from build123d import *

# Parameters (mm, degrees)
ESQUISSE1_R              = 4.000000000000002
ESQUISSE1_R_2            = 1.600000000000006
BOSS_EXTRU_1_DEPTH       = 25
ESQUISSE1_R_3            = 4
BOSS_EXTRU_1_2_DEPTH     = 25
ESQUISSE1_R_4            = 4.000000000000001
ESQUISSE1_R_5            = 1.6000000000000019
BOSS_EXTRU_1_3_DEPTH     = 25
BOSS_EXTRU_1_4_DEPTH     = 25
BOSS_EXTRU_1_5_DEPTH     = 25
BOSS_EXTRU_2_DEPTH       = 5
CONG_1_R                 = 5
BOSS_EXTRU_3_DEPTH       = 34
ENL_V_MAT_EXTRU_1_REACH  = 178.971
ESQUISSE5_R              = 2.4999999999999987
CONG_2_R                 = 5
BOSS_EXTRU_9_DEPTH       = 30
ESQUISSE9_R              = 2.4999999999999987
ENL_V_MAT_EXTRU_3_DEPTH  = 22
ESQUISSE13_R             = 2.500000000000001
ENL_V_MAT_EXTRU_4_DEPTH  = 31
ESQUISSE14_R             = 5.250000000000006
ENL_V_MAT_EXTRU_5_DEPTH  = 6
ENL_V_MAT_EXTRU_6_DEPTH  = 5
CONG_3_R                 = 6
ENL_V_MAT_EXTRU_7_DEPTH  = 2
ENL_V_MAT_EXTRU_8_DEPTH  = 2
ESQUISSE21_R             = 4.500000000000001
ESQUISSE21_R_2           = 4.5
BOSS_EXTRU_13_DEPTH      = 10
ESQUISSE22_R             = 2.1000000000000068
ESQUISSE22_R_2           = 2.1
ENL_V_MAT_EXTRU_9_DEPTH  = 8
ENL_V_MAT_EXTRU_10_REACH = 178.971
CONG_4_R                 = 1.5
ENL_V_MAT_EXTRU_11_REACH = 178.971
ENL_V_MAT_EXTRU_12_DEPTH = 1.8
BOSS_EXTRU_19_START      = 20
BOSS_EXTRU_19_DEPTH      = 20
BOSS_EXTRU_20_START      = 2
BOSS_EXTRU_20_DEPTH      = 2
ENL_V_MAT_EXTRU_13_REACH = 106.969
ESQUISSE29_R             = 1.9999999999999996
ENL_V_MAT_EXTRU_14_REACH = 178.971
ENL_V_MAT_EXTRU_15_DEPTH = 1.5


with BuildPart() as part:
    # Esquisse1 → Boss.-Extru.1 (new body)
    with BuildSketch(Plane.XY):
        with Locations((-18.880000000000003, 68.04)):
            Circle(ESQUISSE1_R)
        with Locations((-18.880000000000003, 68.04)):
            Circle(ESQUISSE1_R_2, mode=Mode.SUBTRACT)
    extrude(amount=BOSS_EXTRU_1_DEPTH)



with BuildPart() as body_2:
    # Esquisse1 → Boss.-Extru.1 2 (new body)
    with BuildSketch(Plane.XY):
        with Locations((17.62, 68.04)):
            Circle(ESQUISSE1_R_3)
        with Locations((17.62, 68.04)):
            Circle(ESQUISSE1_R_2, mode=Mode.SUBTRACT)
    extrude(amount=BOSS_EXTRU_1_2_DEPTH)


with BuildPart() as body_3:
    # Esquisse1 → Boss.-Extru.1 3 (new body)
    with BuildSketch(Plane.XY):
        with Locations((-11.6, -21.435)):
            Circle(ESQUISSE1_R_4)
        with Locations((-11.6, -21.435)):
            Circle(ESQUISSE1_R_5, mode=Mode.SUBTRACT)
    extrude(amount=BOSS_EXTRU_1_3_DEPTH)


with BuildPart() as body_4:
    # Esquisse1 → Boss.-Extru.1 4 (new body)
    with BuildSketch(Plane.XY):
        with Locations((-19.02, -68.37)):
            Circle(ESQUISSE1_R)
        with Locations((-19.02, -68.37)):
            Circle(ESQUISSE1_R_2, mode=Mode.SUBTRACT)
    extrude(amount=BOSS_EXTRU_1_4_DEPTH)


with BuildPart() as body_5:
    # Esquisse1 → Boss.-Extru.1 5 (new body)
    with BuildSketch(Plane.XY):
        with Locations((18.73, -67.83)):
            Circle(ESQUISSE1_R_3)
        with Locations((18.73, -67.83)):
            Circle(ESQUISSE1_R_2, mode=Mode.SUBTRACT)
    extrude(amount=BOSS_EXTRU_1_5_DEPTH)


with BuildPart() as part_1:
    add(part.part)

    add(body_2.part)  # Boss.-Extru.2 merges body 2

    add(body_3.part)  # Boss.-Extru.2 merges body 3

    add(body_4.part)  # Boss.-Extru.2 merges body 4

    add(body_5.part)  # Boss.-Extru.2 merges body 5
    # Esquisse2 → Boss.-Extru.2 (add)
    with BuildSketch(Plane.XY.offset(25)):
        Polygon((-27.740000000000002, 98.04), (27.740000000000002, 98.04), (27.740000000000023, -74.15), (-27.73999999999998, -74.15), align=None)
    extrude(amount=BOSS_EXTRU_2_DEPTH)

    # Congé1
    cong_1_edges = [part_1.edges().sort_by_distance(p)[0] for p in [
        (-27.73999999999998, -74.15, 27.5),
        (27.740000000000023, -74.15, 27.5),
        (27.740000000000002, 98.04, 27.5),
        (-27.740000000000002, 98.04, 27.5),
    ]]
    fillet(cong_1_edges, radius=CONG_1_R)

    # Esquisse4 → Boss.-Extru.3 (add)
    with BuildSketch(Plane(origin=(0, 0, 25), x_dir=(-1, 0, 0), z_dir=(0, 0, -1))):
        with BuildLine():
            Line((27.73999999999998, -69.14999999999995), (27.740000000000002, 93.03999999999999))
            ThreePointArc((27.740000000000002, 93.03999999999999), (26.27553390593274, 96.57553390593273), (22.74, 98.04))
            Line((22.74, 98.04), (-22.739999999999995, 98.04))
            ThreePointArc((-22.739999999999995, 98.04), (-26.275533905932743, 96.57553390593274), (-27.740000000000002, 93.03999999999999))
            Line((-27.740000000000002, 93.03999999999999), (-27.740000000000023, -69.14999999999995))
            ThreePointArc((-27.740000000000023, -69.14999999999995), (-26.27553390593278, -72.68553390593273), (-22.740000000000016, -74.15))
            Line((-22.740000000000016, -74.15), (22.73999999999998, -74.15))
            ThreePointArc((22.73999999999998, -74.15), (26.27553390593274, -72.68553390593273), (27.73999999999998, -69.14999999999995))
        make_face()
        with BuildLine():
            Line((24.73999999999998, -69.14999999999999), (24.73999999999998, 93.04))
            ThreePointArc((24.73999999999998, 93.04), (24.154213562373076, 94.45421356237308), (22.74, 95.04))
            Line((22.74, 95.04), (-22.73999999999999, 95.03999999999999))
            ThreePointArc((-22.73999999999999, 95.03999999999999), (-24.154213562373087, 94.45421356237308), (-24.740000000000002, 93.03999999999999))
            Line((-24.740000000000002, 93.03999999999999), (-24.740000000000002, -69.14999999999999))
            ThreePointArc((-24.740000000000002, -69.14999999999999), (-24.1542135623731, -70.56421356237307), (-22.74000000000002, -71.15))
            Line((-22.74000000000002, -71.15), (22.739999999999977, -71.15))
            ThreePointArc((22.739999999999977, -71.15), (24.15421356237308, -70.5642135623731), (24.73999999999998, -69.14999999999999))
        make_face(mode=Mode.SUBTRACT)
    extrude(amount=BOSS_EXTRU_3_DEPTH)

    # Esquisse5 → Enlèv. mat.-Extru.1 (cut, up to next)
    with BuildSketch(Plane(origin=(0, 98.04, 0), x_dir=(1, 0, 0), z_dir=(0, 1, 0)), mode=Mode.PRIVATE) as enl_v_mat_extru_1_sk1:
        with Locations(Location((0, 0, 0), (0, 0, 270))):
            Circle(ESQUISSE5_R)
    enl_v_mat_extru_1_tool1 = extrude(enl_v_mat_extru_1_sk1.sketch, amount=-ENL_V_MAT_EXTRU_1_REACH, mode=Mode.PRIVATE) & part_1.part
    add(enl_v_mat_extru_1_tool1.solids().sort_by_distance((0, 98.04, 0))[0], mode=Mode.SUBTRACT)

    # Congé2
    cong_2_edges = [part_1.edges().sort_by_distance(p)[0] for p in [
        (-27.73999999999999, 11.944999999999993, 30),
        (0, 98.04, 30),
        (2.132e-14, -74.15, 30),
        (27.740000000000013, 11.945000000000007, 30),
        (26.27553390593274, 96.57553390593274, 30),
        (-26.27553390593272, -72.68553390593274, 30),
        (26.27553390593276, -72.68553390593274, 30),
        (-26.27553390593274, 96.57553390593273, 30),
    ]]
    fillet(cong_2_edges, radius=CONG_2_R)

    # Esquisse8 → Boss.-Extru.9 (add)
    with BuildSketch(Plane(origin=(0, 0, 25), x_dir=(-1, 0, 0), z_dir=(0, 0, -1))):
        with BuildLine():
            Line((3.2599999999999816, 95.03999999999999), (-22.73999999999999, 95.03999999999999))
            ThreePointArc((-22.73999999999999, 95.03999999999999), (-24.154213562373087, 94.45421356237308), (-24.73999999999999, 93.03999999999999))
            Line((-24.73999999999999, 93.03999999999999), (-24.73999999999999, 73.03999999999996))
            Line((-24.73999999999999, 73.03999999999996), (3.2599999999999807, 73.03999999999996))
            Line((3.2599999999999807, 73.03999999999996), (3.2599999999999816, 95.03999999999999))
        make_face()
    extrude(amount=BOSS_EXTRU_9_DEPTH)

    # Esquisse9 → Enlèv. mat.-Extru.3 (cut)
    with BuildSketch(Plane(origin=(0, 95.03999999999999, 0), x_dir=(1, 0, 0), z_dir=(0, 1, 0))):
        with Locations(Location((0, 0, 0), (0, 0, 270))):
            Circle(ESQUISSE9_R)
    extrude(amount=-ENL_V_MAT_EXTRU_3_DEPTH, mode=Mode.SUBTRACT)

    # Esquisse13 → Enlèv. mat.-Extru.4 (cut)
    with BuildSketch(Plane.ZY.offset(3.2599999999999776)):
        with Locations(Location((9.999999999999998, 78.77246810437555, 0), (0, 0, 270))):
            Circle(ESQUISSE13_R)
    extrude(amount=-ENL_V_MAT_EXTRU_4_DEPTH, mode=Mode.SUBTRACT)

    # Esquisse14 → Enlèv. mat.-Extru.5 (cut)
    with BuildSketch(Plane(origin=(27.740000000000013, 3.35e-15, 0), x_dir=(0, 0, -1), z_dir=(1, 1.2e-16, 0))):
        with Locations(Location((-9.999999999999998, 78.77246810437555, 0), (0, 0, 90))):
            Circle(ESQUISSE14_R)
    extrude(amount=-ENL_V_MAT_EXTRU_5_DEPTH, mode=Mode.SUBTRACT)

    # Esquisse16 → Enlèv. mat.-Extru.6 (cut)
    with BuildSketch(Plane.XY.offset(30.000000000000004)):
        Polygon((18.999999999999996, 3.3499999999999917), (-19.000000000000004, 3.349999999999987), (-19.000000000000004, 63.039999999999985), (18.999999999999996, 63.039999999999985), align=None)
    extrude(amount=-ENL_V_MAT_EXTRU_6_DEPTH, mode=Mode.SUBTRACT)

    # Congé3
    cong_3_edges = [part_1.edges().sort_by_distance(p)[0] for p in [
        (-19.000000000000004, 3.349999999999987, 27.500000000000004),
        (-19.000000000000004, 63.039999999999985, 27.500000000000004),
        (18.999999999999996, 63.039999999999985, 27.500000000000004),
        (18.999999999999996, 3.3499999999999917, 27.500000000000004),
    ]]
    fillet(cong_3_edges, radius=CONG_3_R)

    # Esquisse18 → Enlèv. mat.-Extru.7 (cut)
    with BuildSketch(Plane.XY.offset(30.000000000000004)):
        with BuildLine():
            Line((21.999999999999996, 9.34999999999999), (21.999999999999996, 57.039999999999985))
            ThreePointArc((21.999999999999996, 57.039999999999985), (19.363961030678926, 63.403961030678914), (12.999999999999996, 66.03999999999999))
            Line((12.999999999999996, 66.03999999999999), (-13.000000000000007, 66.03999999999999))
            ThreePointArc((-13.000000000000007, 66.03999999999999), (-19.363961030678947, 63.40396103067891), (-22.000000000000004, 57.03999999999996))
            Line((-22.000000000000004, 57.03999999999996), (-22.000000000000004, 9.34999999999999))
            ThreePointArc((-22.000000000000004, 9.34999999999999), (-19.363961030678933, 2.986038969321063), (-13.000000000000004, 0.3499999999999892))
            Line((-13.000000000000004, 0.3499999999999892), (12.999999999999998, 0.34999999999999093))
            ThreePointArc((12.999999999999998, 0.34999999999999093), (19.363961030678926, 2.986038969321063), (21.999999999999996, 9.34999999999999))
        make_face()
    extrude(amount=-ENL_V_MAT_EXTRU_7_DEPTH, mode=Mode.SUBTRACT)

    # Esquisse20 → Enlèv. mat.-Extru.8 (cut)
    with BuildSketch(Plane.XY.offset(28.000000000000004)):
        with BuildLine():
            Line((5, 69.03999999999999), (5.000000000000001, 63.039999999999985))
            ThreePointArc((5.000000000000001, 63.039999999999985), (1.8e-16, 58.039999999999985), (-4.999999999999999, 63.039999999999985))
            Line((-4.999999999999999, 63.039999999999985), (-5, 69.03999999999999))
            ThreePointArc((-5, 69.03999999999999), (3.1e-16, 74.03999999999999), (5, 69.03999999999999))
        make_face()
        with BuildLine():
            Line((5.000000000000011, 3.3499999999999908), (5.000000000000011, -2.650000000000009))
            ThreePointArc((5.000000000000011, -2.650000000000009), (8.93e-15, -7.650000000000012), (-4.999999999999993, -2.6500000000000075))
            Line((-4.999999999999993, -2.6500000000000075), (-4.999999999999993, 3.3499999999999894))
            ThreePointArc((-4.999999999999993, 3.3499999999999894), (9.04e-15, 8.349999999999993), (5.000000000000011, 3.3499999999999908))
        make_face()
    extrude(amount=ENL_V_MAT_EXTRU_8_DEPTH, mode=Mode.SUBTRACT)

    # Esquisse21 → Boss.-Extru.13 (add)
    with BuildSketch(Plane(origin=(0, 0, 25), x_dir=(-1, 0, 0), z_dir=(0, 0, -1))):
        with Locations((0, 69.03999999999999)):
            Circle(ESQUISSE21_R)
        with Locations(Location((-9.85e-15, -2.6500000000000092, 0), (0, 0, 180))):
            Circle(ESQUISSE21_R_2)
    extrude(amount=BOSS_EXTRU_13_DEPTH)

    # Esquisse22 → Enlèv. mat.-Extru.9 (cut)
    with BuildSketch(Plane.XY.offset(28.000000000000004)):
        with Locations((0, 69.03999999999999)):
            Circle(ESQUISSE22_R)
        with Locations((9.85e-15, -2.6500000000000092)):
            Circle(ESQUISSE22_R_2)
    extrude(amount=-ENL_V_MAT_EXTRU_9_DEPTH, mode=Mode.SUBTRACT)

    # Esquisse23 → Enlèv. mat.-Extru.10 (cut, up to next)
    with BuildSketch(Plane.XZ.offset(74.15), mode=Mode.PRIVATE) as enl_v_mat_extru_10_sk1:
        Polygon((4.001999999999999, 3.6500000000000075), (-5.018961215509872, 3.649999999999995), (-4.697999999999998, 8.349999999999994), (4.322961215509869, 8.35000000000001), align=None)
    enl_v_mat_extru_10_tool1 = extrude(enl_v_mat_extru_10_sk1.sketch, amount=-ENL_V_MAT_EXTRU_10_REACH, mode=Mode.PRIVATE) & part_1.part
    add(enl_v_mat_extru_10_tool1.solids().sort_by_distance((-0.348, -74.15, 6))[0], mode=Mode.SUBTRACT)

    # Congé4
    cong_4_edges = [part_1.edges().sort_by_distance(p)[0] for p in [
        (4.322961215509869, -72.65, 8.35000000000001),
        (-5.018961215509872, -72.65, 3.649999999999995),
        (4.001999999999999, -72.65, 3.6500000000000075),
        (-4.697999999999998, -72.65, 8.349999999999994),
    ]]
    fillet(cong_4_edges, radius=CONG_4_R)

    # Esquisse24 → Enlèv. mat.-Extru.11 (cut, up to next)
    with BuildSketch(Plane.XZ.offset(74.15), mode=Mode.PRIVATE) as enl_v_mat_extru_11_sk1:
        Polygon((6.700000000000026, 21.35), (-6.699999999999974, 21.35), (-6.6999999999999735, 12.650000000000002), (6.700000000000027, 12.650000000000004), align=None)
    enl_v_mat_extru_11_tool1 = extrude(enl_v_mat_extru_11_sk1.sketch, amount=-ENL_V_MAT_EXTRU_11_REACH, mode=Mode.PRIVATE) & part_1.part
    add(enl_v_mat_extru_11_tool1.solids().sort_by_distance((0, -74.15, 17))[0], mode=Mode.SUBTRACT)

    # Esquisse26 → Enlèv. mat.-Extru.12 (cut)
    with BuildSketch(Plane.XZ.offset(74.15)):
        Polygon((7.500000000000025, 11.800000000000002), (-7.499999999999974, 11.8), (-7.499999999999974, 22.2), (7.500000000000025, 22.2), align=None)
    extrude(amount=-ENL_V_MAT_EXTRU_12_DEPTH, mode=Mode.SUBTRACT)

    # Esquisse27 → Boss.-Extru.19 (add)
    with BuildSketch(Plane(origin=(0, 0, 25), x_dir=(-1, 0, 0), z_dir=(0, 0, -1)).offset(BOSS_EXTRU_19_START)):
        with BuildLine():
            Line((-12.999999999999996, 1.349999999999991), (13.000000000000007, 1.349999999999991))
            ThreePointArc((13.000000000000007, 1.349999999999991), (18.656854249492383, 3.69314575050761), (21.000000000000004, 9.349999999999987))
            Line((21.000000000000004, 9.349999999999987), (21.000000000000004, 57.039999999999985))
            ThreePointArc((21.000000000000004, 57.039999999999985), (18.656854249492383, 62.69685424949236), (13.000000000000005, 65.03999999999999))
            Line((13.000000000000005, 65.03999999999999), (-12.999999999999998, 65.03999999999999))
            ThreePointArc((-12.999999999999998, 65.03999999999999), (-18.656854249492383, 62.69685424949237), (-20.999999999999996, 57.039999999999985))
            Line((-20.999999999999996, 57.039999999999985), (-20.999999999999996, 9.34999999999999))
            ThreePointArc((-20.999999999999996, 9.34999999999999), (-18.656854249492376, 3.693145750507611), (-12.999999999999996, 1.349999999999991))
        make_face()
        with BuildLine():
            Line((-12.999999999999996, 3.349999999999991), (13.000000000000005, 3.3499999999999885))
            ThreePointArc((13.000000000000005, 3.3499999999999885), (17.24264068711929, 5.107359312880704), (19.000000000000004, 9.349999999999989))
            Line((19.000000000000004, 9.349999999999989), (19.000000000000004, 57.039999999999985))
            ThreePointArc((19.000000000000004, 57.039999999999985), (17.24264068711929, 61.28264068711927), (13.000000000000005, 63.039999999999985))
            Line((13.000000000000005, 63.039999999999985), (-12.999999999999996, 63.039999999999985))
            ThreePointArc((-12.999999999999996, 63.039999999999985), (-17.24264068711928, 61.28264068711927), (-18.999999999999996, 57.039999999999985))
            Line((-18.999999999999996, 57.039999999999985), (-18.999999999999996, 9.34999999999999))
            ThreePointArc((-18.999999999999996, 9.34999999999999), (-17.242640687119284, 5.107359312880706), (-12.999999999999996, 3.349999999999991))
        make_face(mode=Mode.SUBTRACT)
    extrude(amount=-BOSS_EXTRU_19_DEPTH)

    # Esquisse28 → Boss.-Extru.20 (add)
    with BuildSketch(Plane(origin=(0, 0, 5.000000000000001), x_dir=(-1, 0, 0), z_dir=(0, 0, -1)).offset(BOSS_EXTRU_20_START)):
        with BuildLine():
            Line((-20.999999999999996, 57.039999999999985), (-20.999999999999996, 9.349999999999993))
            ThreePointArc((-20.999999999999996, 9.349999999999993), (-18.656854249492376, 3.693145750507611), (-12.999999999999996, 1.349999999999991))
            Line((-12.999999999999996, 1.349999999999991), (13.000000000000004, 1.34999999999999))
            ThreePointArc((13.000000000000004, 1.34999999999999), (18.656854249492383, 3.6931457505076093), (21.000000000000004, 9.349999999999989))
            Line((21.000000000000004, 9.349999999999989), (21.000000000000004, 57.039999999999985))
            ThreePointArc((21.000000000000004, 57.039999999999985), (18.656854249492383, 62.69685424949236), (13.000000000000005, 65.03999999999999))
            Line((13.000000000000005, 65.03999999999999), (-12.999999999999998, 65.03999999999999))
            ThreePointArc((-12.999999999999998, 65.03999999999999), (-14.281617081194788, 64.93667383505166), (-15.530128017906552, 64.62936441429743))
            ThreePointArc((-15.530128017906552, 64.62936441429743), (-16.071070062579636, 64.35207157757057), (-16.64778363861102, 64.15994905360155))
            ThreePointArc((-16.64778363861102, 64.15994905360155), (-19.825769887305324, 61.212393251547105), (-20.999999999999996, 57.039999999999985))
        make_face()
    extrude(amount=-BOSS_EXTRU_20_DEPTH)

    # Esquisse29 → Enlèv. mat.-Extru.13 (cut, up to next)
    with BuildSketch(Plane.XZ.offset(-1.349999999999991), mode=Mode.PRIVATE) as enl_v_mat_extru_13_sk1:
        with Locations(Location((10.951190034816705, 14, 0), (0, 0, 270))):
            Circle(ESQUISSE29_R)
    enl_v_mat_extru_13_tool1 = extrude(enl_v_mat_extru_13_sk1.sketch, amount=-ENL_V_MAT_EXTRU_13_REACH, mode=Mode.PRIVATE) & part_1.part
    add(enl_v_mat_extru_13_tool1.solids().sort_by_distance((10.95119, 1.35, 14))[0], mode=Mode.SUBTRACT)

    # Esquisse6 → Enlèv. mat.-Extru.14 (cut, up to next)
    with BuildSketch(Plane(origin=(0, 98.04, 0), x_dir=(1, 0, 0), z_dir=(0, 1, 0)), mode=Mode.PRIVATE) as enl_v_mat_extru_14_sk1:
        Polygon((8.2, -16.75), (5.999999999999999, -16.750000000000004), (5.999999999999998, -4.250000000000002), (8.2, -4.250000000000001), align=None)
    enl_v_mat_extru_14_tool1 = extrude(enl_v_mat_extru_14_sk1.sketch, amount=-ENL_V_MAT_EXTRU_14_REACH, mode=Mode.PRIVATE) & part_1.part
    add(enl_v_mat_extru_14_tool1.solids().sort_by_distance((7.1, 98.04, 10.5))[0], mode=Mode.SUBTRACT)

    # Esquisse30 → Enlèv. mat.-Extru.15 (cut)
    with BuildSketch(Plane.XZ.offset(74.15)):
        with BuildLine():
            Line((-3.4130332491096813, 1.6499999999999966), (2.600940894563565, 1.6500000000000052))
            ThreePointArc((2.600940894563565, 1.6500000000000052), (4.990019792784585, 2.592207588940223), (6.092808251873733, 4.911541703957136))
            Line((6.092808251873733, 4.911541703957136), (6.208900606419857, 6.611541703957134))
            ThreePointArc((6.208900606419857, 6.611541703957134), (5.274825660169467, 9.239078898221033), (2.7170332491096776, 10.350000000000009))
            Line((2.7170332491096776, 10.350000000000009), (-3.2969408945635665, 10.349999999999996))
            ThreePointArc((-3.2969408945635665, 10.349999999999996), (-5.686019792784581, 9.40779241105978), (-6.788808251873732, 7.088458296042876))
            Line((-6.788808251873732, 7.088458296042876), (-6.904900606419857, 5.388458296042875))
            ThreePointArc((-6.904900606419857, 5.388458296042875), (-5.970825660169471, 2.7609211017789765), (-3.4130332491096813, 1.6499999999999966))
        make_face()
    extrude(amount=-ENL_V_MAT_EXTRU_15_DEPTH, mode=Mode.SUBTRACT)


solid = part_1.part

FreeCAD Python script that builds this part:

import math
import FreeCAD as App
import Part
import Sketcher

V = App.Vector
Q = App.Units.Quantity


def edges_at(feature, points):
    """Names of the edges that pass closest to the given points."""
    edges = feature.Shape.Edges
    near = lambda p: min(range(len(edges)), key=lambda i: edges[i].distToShape(Part.Vertex(*p))[0])
    return sorted({f"Edge{near(p) + 1}" for p in points})


def add_polygon(sketch, points):
    """Adds a closed chain of lines whose ends are joined by coincident constraints."""
    first, n = sketch.GeometryCount, len(points)
    for a, b in zip(points, points[1:] + points[:1]):
        sketch.addGeometry(Part.LineSegment(App.Vector(*a, 0), App.Vector(*b, 0)), False)
    for i in range(n):
        sketch.addConstraint(Sketcher.Constraint("Coincident", first + i, 2, first + (i + 1) % n, 1))

doc = App.newDocument("Part")
body = doc.addObject("PartDesign::Body", "Body")

# Sketch on XY plane
sketch1 = body.newObject("Sketcher::SketchObject", "Sketch")
sketch1.AttachmentSupport = (doc.getObject("XY_Plane"), [""])
sketch1.MapMode = "FlatFace"
sketch1.addGeometry([
    Part.Circle(V(-18.88, 68.04, 0), V(0, 0, 1), 4),
    Part.Circle(V(-18.88, 68.04, 0), V(0, 0, 1), 1.6),
], False)
sketch1.addConstraint([
    Sketcher.Constraint("Coincident", 1, 3, 0, 3),
    Sketcher.Constraint("Diameter", 0, Q("8 mm")),
    Sketcher.Constraint("Diameter", 1, Q("3.2 mm")),
    Sketcher.Constraint("DistanceX", 0, 3, -1, 1, Q("18.88 mm")),
    Sketcher.Constraint("DistanceY", -1, 1, 0, 3, Q("68.04 mm")),
])
pad1 = body.newObject("PartDesign::Pad", "Pad")
pad1.Profile = sketch1
pad1.Length = 25
body2 = doc.addObject("PartDesign::Body", "Body001")

# Sketch on XY plane
sketch2 = body2.newObject("Sketcher::SketchObject", "Sketch001")
sketch2.AttachmentSupport = (doc.getObject("XY_Plane001"), [""])
sketch2.MapMode = "FlatFace"
sketch2.addGeometry([
    Part.Circle(V(17.62, 68.04, 0), V(0, 0, 1), 4),
    Part.Circle(V(17.62, 68.04, 0), V(0, 0, 1), 1.6),
], False)
sketch2.addConstraint([
    Sketcher.Constraint("Coincident", 1, 3, 0, 3),
    Sketcher.Constraint("Diameter", 0, Q("8 mm")),
    Sketcher.Constraint("Diameter", 1, Q("3.2 mm")),
    Sketcher.Constraint("DistanceX", -1, 1, 0, 3, Q("17.62 mm")),
    Sketcher.Constraint("DistanceY", -1, 1, 0, 3, Q("68.04 mm")),
])
pad2 = body2.newObject("PartDesign::Pad", "Pad001")
pad2.Profile = sketch2
pad2.Length = 25
body3 = doc.addObject("PartDesign::Body", "Body002")

# Sketch on XY plane
sketch3 = body3.newObject("Sketcher::SketchObject", "Sketch002")
sketch3.AttachmentSupport = (doc.getObject("XY_Plane002"), [""])
sketch3.MapMode = "FlatFace"
sketch3.addGeometry([
    Part.Circle(V(-11.6, -21.435, 0), V(0, 0, 1), 4),
    Part.Circle(V(-11.6, -21.435, 0), V(0, 0, 1), 1.6),
], False)
sketch3.addConstraint([
    Sketcher.Constraint("Coincident", 1, 3, 0, 3),
    Sketcher.Constraint("Diameter", 0, Q("8 mm")),
    Sketcher.Constraint("Diameter", 1, Q("3.2 mm")),
    Sketcher.Constraint("DistanceX", 0, 3, -1, 1, Q("11.6 mm")),
    Sketcher.Constraint("DistanceY", 0, 3, -1, 1, Q("21.435 mm")),
])
pad3 = body3.newObject("PartDesign::Pad", "Pad002")
pad3.Profile = sketch3
pad3.Length = 25
body4 = doc.addObject("PartDesign::Body", "Body003")

# Sketch on XY plane
sketch4 = body4.newObject("Sketcher::SketchObject", "Sketch003")
sketch4.AttachmentSupport = (doc.getObject("XY_Plane003"), [""])
sketch4.MapMode = "FlatFace"
sketch4.addGeometry([
    Part.Circle(V(-19.02, -68.37, 0), V(0, 0, 1), 4),
    Part.Circle(V(-19.02, -68.37, 0), V(0, 0, 1), 1.6),
], False)
sketch4.addConstraint([
    Sketcher.Constraint("Coincident", 1, 3, 0, 3),
    Sketcher.Constraint("Diameter", 0, Q("8 mm")),
    Sketcher.Constraint("Diameter", 1, Q("3.2 mm")),
    Sketcher.Constraint("DistanceX", 0, 3, -1, 1, Q("19.02 mm")),
    Sketcher.Constraint("DistanceY", 0, 3, -1, 1, Q("68.37 mm")),
])
pad4 = body4.newObject("PartDesign::Pad", "Pad003")
pad4.Profile = sketch4
pad4.Length = 25
body5 = doc.addObject("PartDesign::Body", "Body004")

# Sketch on XY plane
sketch5 = body5.newObject("Sketcher::SketchObject", "Sketch004")
sketch5.AttachmentSupport = (doc.getObject("XY_Plane004"), [""])
sketch5.MapMode = "FlatFace"
sketch5.addGeometry([
    Part.Circle(V(18.73, -67.83, 0), V(0, 0, 1), 4),
    Part.Circle(V(18.73, -67.83, 0), V(0, 0, 1), 1.6),
], False)
sketch5.addConstraint([
    Sketcher.Constraint("Coincident", 1, 3, 0, 3),
    Sketcher.Constraint("Diameter", 0, Q("8 mm")),
    Sketcher.Constraint("Diameter", 1, Q("3.2 mm")),
    Sketcher.Constraint("DistanceX", -1, 1, 0, 3, Q("18.73 mm")),
    Sketcher.Constraint("DistanceY", 0, 3, -1, 1, Q("67.83 mm")),
])
pad5 = body5.newObject("PartDesign::Pad", "Pad004")
pad5.Profile = sketch5
pad5.Length = 25
body.AllowCompound = True
doc.recompute()

boolean = body.newObject("PartDesign::Boolean", "Boolean")
boolean.Type = "Fuse"
boolean.addObjects([body2])
doc.recompute()

boolean2 = body.newObject("PartDesign::Boolean", "Boolean001")
boolean2.Type = "Fuse"
boolean2.addObjects([body3])
doc.recompute()

boolean3 = body.newObject("PartDesign::Boolean", "Boolean002")
boolean3.Type = "Fuse"
boolean3.addObjects([body4])
doc.recompute()

boolean4 = body.newObject("PartDesign::Boolean", "Boolean003")
boolean4.Type = "Fuse"
boolean4.addObjects([body5])

# Sketch on XY plane
sketch6 = body.newObject("Sketcher::SketchObject", "Sketch005")
sketch6.AttachmentSupport = (doc.getObject("XY_Plane"), [""])
sketch6.MapMode = "FlatFace"
sketch6.AttachmentOffset = App.Placement(V(0, 0, 25), App.Rotation())
add_polygon(sketch6, [(27.74, 98.04), (-27.74, 98.04), (-27.74, -74.15), (27.74, -74.15)])  # lines 0-3
sketch6.addConstraint([
    Sketcher.Constraint("Horizontal", 0),
    Sketcher.Constraint("Vertical", 1),
    Sketcher.Constraint("Horizontal", 2),
    Sketcher.Constraint("Vertical", 3),
    Sketcher.Constraint("DistanceX", 0, 2, 0, 1, Q("55.48 mm")),
    Sketcher.Constraint("DistanceY", 1, 2, 1, 1, Q("172.19 mm")),
    Sketcher.Constraint("DistanceX", 0, 2, -1, 1, Q("27.74 mm")),
    Sketcher.Constraint("DistanceY", -1, 1, 0, 2, Q("98.04 mm")),
])
pad6 = body.newObject("PartDesign::Pad", "Pad005")
pad6.Profile = sketch6
pad6.Length = 5
doc.recompute()

fillet = body.newObject("PartDesign::Fillet", "Fillet")
fillet.Base = (pad6, edges_at(pad6, [
    (-27.74, -74.15, 27.5),
    (27.74, -74.15, 27.5),
    (27.74, 98.04, 27.5),
    (-27.74, 98.04, 27.5),
]))
fillet.Radius = 5

# Sketch on XY plane
sketch7 = body.newObject("Sketcher::SketchObject", "Sketch006")
sketch7.AttachmentSupport = (doc.getObject("XY_Plane"), [""])
sketch7.MapMode = "FlatFace"
sketch7.AttachmentOffset = App.Placement(V(0, 0, 25), App.Rotation())
sketch7.addGeometry([
    Part.LineSegment(V(-27.74, -69.15, 0), V(-27.74, 93.04, 0)),  # 0
    Part.ArcOfCircle(Part.Circle(V(-22.74, 93.04, 0), V(0, 0, 1), 5), math.radians(90), math.radians(180)),  # 1
    Part.LineSegment(V(-22.74, 98.04, 0), V(22.74, 98.04, 0)),  # 2
    Part.ArcOfCircle(Part.Circle(V(22.74, 93.04, 0), V(0, 0, 1), 5), math.radians(0), math.radians(90)),  # 3
    Part.LineSegment(V(27.74, 93.04, 0), V(27.74, -69.15, 0)),  # 4
    Part.ArcOfCircle(Part.Circle(V(22.74, -69.15, 0), V(0, 0, 1), 5), math.radians(-90), math.radians(0)),  # 5
    Part.LineSegment(V(22.74, -74.15, 0), V(-22.74, -74.15, 0)),  # 6
    Part.ArcOfCircle(Part.Circle(V(-22.74, -69.15, 0), V(0, 0, 1), 5), math.radians(180), math.radians(270)),  # 7
    Part.LineSegment(V(-24.74, 93.04, 0), V(-24.74, -69.15, 0)),  # 8
    Part.ArcOfCircle(Part.Circle(V(-22.74, -69.15, 0), V(0, 0, 1), 2), math.radians(180), math.radians(270)),  # 9
    Part.LineSegment(V(-22.74, -71.15, 0), V(22.74, -71.15, 0)),  # 10
    Part.ArcOfCircle(Part.Circle(V(22.74, -69.15, 0), V(0, 0, 1), 2), math.radians(-90), math.radians(0)),  # 11
    Part.LineSegment(V(24.74, -69.15, 0), V(24.74, 93.04, 0)),  # 12
    Part.ArcOfCircle(Part.Circle(V(22.74, 93.04, 0), V(0, 0, 1), 2), math.radians(0), math.radians(90)),  # 13
    Part.LineSegment(V(22.74, 95.04, 0), V(-22.74, 95.04, 0)),  # 14
    Part.ArcOfCircle(Part.Circle(V(-22.74, 93.04, 0), V(0, 0, 1), 2), math.radians(90), math.radians(180)),  # 15
], False)
sketch7.addConstraint([
    Sketcher.Constraint("Tangent", 0, 2, 1, 2),
    Sketcher.Constraint("Tangent", 1, 1, 2, 1),
    Sketcher.Constraint("Tangent", 2, 2, 3, 2),
    Sketcher.Constraint("Tangent", 3, 1, 4, 1),
    Sketcher.Constraint("Tangent", 4, 2, 5, 2),
    Sketcher.Constraint("Tangent", 5, 1, 6, 1),
    Sketcher.Constraint("Tangent", 6, 2, 7, 2),
    Sketcher.Constraint("Tangent", 7, 1, 0, 1),
    Sketcher.Constraint("Tangent", 8, 2, 9, 1),
    Sketcher.Constraint("Tangent", 9, 2, 10, 1),
    Sketcher.Constraint("Tangent", 10, 2, 11, 1),
    Sketcher.Constraint("Tangent", 11, 2, 12, 1),
    Sketcher.Constraint("Tangent", 12, 2, 13, 1),
    Sketcher.Constraint("Tangent", 13, 2, 14, 1),
    Sketcher.Constraint("Tangent", 14, 2, 15, 1),
    Sketcher.Constraint("Tangent", 15, 2, 8, 1),
    Sketcher.Constraint("Vertical", 0),
    Sketcher.Constraint("Horizontal", 2),
    Sketcher.Constraint("Vertical", 4),
    Sketcher.Constraint("Horizontal", 6),
    Sketcher.Constraint("Vertical", 8),
    Sketcher.Constraint("Horizontal", 10),
    Sketcher.Constraint("Vertical", 12),
    Sketcher.Constraint("Horizontal", 14),
    Sketcher.Constraint("Coincident", 9, 3, 7, 3),
    Sketcher.Constraint("Coincident", 11, 3, 5, 3),
    Sketcher.Constraint("Coincident", 13, 3, 3, 3),
    Sketcher.Constraint("Equal", 1, 3),
    Sketcher.Constraint("Equal", 3, 5),
    Sketcher.Constraint("Equal", 5, 7),
    Sketcher.Constraint("Equal", 13, 15),
    Sketcher.Constraint("Radius", 1, Q("5 mm")),
    Sketcher.Constraint("Radius", 9, Q("2 mm")),
    Sketcher.Constraint("DistanceX", 2, 1, 2, 2, Q("45.48 mm")),
    Sketcher.Constraint("DistanceY", 0, 1, 0, 2, Q("162.19 mm")),
    Sketcher.Constraint("DistanceX", 1, 3, -1, 1, Q("22.74 mm")),
    Sketcher.Constraint("DistanceY", -1, 1, 1, 3, Q("93.04 mm")),
])
pad7 = body.newObject("PartDesign::Pad", "Pad006")
pad7.Profile = sketch7
pad7.Length = 34
pad7.Reversed = True

# Sketch on XZ plane
sketch8 = body.newObject("Sketcher::SketchObject", "Sketch007")
sketch8.AttachmentSupport = (doc.getObject("XZ_Plane"), [""])
sketch8.MapMode = "FlatFace"
sketch8.AttachmentOffset = App.Placement(V(0, 0, -98.04), App.Rotation())
sketch8.addGeometry(Part.Circle(V(0, 0, 0), V(0, 0, 1), 2.5), False)
sketch8.addConstraint([
    Sketcher.Constraint("Coincident", 0, 3, -1, 1),
    Sketcher.Constraint("Diameter", 0, Q("5 mm")),
])
pocket1 = body.newObject("PartDesign::Pocket", "Pocket")
pocket1.Profile = sketch8
pocket1.Type = "UpToFirst"
pocket1.Reversed = True
doc.recompute()

fillet2 = body.newObject("PartDesign::Fillet", "Fillet001")
fillet2.Base = (pocket1, edges_at(pocket1, [
    (-27.74, 11.945, 30),
    (0, 98.04, 30),
    (0, -74.15, 30),
    (27.74, 11.945, 30),
    (26.276, 96.576, 30),
    (-26.276, -72.686, 30),
    (26.276, -72.686, 30),
    (-26.276, 96.576, 30),
]))
fillet2.Radius = 5

# Sketch on XY plane
sketch9 = body.newObject("Sketcher::SketchObject", "Sketch008")
sketch9.AttachmentSupport = (doc.getObject("XY_Plane"), [""])
sketch9.MapMode = "FlatFace"
sketch9.AttachmentOffset = App.Placement(V(0, 0, 25), App.Rotation())
sketch9.addGeometry([
    Part.LineSegment(V(-3.26, 95.04, 0), V(22.74, 95.04, 0)),  # 0
    Part.ArcOfCircle(Part.Circle(V(22.74, 93.04, 0), V(0, 0, 1), 2), math.radians(0), math.radians(90)),  # 1
    Part.LineSegment(V(24.74, 93.04, 0), V(24.74, 73.04, 0)),  # 2
    Part.LineSegment(V(24.74, 73.04, 0), V(-3.26, 73.04, 0)),  # 3
    Part.LineSegment(V(-3.26, 73.04, 0), V(-3.26, 95.04, 0)),  # 4
], False)
sketch9.addConstraint([
    Sketcher.Constraint("Tangent", 0, 2, 1, 2),
    Sketcher.Constraint("Tangent", 1, 1, 2, 1),
    Sketcher.Constraint("Coincident", 2, 2, 3, 1),
    Sketcher.Constraint("Coincident", 3, 2, 4, 1),
    Sketcher.Constraint("Coincident", 4, 2, 0, 1),
    Sketcher.Constraint("Horizontal", 0),
    Sketcher.Constraint("Vertical", 2),
    Sketcher.Constraint("Horizontal", 3),
    Sketcher.Constraint("Vertical", 4),
    Sketcher.Constraint("Radius", 1, Q("2 mm")),
    Sketcher.Constraint("DistanceX", 0, 1, 0, 2, Q("26 mm")),
    Sketcher.Constraint("DistanceY", 2, 2, 2, 1, Q("20 mm")),
    Sketcher.Constraint("DistanceX", -1, 1, 1, 3, Q("22.74 mm")),
    Sketcher.Constraint("DistanceY", -1, 1, 1, 3, Q("93.04 mm")),
])
pad8 = body.newObject("PartDesign::Pad", "Pad007")
pad8.Profile = sketch9
pad8.Length = 30
pad8.Reversed = True

# Sketch on XZ plane
sketch10 = body.newObject("Sketcher::SketchObject", "Sketch009")
sketch10.AttachmentSupport = (doc.getObject("XZ_Plane"), [""])
sketch10.MapMode = "FlatFace"
sketch10.AttachmentOffset = App.Placement(V(0, 0, -95.04), App.Rotation())
sketch10.addGeometry(Part.Circle(V(0, 0, 0), V(0, 0, 1), 2.5), False)
sketch10.addConstraint([
    Sketcher.Constraint("Coincident", 0, 3, -1, 1),
    Sketcher.Constraint("Diameter", 0, Q("5 mm")),
])
pocket2 = body.newObject("PartDesign::Pocket", "Pocket001")
pocket2.Profile = sketch10
pocket2.Length = 22
pocket2.Reversed = True

# Sketch on YZ plane
sketch11 = body.newObject("Sketcher::SketchObject", "Sketch010")
sketch11.AttachmentSupport = (doc.getObject("YZ_Plane"), [""])
sketch11.MapMode = "FlatFace"
sketch11.AttachmentOffset = App.Placement(V(0, 0, -3.26), App.Rotation())
sketch11.addGeometry(Part.Circle(V(78.772468, 10, 0), V(0, 0, 1), 2.5), False)
sketch11.addConstraint([
    Sketcher.Constraint("Diameter", 0, Q("5 mm")),
    Sketcher.Constraint("DistanceY", -1, 1, 0, 3, Q("10 mm")),
    Sketcher.Constraint("DistanceX", -1, 1, 0, 3, Q("78.772468 mm")),
])
pocket3 = body.newObject("PartDesign::Pocket", "Pocket002")
pocket3.Profile = sketch11
pocket3.Length = 31
pocket3.Reversed = True

# Sketch on YZ plane
sketch12 = body.newObject("Sketcher::SketchObject", "Sketch011")
sketch12.AttachmentSupport = (doc.getObject("YZ_Plane"), [""])
sketch12.MapMode = "FlatFace"
sketch12.AttachmentOffset = App.Placement(V(0, 0, 27.74), App.Rotation())
sketch12.addGeometry(Part.Circle(V(78.772468, 10, 0), V(0, 0, 1), 5.25), False)
sketch12.addConstraint([
    Sketcher.Constraint("Diameter", 0, Q("10.5 mm")),
    Sketcher.Constraint("DistanceY", -1, 1, 0, 3, Q("10 mm")),
    Sketcher.Constraint("DistanceX", -1, 1, 0, 3, Q("78.772468 mm")),
])
pocket4 = body.newObject("PartDesign::Pocket", "Pocket003")
pocket4.Profile = sketch12
pocket4.Length = 6

# Sketch on XY plane
sketch13 = body.newObject("Sketcher::SketchObject", "Sketch012")
sketch13.AttachmentSupport = (doc.getObject("XY_Plane"), [""])
sketch13.MapMode = "FlatFace"
sketch13.AttachmentOffset = App.Placement(V(0, 0, 30), App.Rotation())
add_polygon(sketch13, [(-19, 3.35), (19, 3.35), (19, 63.04), (-19, 63.04)])  # lines 0-3
sketch13.addConstraint([
    Sketcher.Constraint("Horizontal", 0),
    Sketcher.Constraint("Vertical", 1),
    Sketcher.Constraint("Horizontal", 2),
    Sketcher.Constraint("Vertical", 3),
    Sketcher.Constraint("DistanceX", 0, 1, 0, 2, Q("38 mm")),
    Sketcher.Constraint("DistanceX", -1, 1, 0, 2, Q("19 mm")),
    Sketcher.Constraint("DistanceY", 1, 1, 1, 2, Q("59.69 mm")),
    Sketcher.Constraint("DistanceY", -1, 1, 0, 2, Q("3.35 mm")),
])
pocket5 = body.newObject("PartDesign::Pocket", "Pocket004")
pocket5.Profile = sketch13
pocket5.Length = 5
doc.recompute()

fillet3 = body.newObject("PartDesign::Fillet", "Fillet002")
fillet3.Base = (pocket5, edges_at(pocket5, [
    (-19, 3.35, 27.5),
    (-19, 63.04, 27.5),
    (19, 63.04, 27.5),
    (19, 3.35, 27.5),
]))
fillet3.Radius = 6

# Sketch on XY plane
sketch14 = body.newObject("Sketcher::SketchObject", "Sketch013")
sketch14.AttachmentSupport = (doc.getObject("XY_Plane"), [""])
sketch14.MapMode = "FlatFace"
sketch14.AttachmentOffset = App.Placement(V(0, 0, 30), App.Rotation())
sketch14.addGeometry([
    Part.LineSegment(V(22, 9.35, 0), V(22, 57.04, 0)),  # 0
    Part.ArcOfCircle(Part.Circle(V(13, 57.04, 0), V(0, 0, 1), 9), math.radians(0), math.radians(90)),  # 1
    Part.LineSegment(V(13, 66.04, 0), V(-13, 66.04, 0)),  # 2
    Part.ArcOfCircle(Part.Circle(V(-13, 57.04, 0), V(0, 0, 1), 9), math.radians(90), math.radians(180)),  # 3
    Part.LineSegment(V(-22, 57.04, 0), V(-22, 9.35, 0)),  # 4
    Part.ArcOfCircle(Part.Circle(V(-13, 9.35, 0), V(0, 0, 1), 9), math.radians(180), math.radians(270)),  # 5
    Part.LineSegment(V(-13, 0.35, 0), V(13, 0.35, 0)),  # 6
    Part.ArcOfCircle(Part.Circle(V(13, 9.35, 0), V(0, 0, 1), 9), math.radians(-90), math.radians(0)),  # 7
], False)
sketch14.addConstraint([
    Sketcher.Constraint("Tangent", 0, 2, 1, 1),
    Sketcher.Constraint("Tangent", 1, 2, 2, 1),
    Sketcher.Constraint("Tangent", 2, 2, 3, 1),
    Sketcher.Constraint("Tangent", 3, 2, 4, 1),
    Sketcher.Constraint("Tangent", 4, 2, 5, 1),
    Sketcher.Constraint("Tangent", 5, 2, 6, 1),
    Sketcher.Constraint("Tangent", 6, 2, 7, 1),
    Sketcher.Constraint("Tangent", 7, 2, 0, 1),
    Sketcher.Constraint("Vertical", 0),
    Sketcher.Constraint("Horizontal", 2),
    Sketcher.Constraint("Vertical", 4),
    Sketcher.Constraint("Horizontal", 6),
    Sketcher.Constraint("Equal", 1, 3),
    Sketcher.Constraint("Equal", 3, 5),
    Sketcher.Constraint("Equal", 5, 7),
    Sketcher.Constraint("Radius", 1, Q("9 mm")),
    Sketcher.Constraint("DistanceX", 2, 2, 2, 1, Q("26 mm")),
    Sketcher.Constraint("DistanceX", -1, 1, 1, 3, Q("13 mm")),
    Sketcher.Constraint("DistanceY", 0, 1, 0, 2, Q("47.69 mm")),
    Sketcher.Constraint("DistanceY", -1, 1, 1, 3, Q("57.04 mm")),
])
pocket6 = body.newObject("PartDesign::Pocket", "Pocket005")
pocket6.Profile = sketch14
pocket6.Length = 2

# Sketch on XY plane
sketch15 = body.newObject("Sketcher::SketchObject", "Sketch014")
sketch15.AttachmentSupport = (doc.getObject("XY_Plane"), [""])
sketch15.MapMode = "FlatFace"
sketch15.AttachmentOffset = App.Placement(V(0, 0, 28), App.Rotation())
sketch15.addGeometry([
    Part.LineSegment(V(5, 63.04, 0), V(5, 69.04, 0)),  # 0
    Part.ArcOfCircle(Part.Circle(V(0, 69.04, 0), V(0, 0, 1), 5), math.radians(0), math.radians(180)),  # 1
    Part.LineSegment(V(-5, 69.04, 0), V(-5, 63.04, 0)),  # 2
    Part.ArcOfCircle(Part.Circle(V(0, 63.04, 0), V(0, 0, 1), 5), math.radians(180), math.radians(360)),  # 3
    Part.LineSegment(V(5, -2.65, 0), V(5, 3.35, 0)),  # 4
    Part.ArcOfCircle(Part.Circle(V(0, 3.35, 0), V(0, 0, 1), 5), math.radians(0), math.radians(180)),  # 5
    Part.LineSegment(V(-5, 3.35, 0), V(-5, -2.65, 0)),  # 6
    Part.ArcOfCircle(Part.Circle(V(0, -2.65, 0), V(0, 0, 1), 5), math.radians(180), math.radians(360)),  # 7
], False)
sketch15.addConstraint([
    Sketcher.Constraint("Tangent", 0, 2, 1, 1),
    Sketcher.Constraint("Tangent", 1, 2, 2, 1),
    Sketcher.Constraint("Tangent", 2, 2, 3, 1),
    Sketcher.Constraint("Tangent", 3, 2, 0, 1),
    Sketcher.Constraint("Tangent", 4, 2, 5, 1),
    Sketcher.Constraint("Tangent", 5, 2, 6, 1),
    Sketcher.Constraint("Tangent", 6, 2, 7, 1),
    Sketcher.Constraint("Tangent", 7, 2, 4, 1),
    Sketcher.Constraint("Vertical", 0),
    Sketcher.Constraint("Vertical", 2),
    Sketcher.Constraint("Vertical", 4),
    Sketcher.Constraint("Vertical", 6),
    Sketcher.Constraint("Equal", 3, 5),
    Sketcher.Constraint("PointOnObject", 1, 3, -2),
    Sketcher.Constraint("PointOnObject", 5, 3, -2),
    Sketcher.Constraint("Equal", 2, 4),
    Sketcher.Constraint("Radius", 1, Q("5 mm")),
    Sketcher.Constraint("DistanceY", 0, 1, 0, 2, Q("6 mm")),
    Sketcher.Constraint("DistanceY", -1, 1, 1, 3, Q("69.04 mm")),
    Sketcher.Constraint("DistanceY", -1, 1, 5, 3, Q("3.35 mm")),
])
pocket7 = body.newObject("PartDesign::Pocket", "Pocket006")
pocket7.Profile = sketch15
pocket7.Length = 2
pocket7.Reversed = True

# Sketch on XY plane
sketch16 = body.newObject("Sketcher::SketchObject", "Sketch015")
sketch16.AttachmentSupport = (doc.getObject("XY_Plane"), [""])
sketch16.MapMode = "FlatFace"
sketch16.AttachmentOffset = App.Placement(V(0, 0, 25), App.Rotation())
sketch16.addGeometry([
    Part.Circle(V(0, 69.04, 0), V(0, 0, 1), 4.5),
    Part.Circle(V(0, -2.65, 0), V(0, 0, 1), 4.5),
], False)
sketch16.addConstraint([
    Sketcher.Constraint("Equal", 0, 1),
    Sketcher.Constraint("PointOnObject", 0, 3, -2),
    Sketcher.Constraint("PointOnObject", 1, 3, -2),
    Sketcher.Constraint("Diameter", 0, Q("9 mm")),
    Sketcher.Constraint("DistanceY", -1, 1, 0, 3, Q("69.04 mm")),
    Sketcher.Constraint("DistanceY", 1, 3, -1, 1, Q("2.65 mm")),
])
pad9 = body.newObject("PartDesign::Pad", "Pad008")
pad9.Profile = sketch16
pad9.Length = 10
pad9.Reversed = True

# Sketch on XY plane
sketch17 = body.newObject("Sketcher::SketchObject", "Sketch016")
sketch17.AttachmentSupport = (doc.getObject("XY_Plane"), [""])
sketch17.MapMode = "FlatFace"
sketch17.AttachmentOffset = App.Placement(V(0, 0, 28), App.Rotation())
sketch17.addGeometry([
    Part.Circle(V(0, 69.04, 0), V(0, 0, 1), 2.1),
    Part.Circle(V(0, -2.65, 0), V(0, 0, 1), 2.1),
], False)
sketch17.addConstraint([
    Sketcher.Constraint("Equal", 0, 1),
    Sketcher.Constraint("PointOnObject", 0, 3, -2),
    Sketcher.Constraint("PointOnObject", 1, 3, -2),
    Sketcher.Constraint("Diameter", 0, Q("4.2 mm")),
    Sketcher.Constraint("DistanceY", -1, 1, 0, 3, Q("69.04 mm")),
    Sketcher.Constraint("DistanceY", 1, 3, -1, 1, Q("2.65 mm")),
])
pocket8 = body.newObject("PartDesign::Pocket", "Pocket007")
pocket8.Profile = sketch17
pocket8.Length = 8

# Sketch on XZ plane
sketch18 = body.newObject("Sketcher::SketchObject", "Sketch017")
sketch18.AttachmentSupport = (doc.getObject("XZ_Plane"), [""])
sketch18.MapMode = "FlatFace"
sketch18.AttachmentOffset = App.Placement(V(0, 0, 74.15), App.Rotation())
add_polygon(sketch18, [(-5.018961, 3.65), (4.002, 3.65), (4.322961, 8.35), (-4.698, 8.35)])  # lines 0-3
sketch18.addConstraint([
    Sketcher.Constraint("Horizontal", 0),
    Sketcher.Constraint("Horizontal", 2),
    Sketcher.Constraint("Parallel", 1, 3),
    Sketcher.Constraint("DistanceY", 0, 2, 1, 2, Q("4.7 mm")),
    Sketcher.Constraint("DistanceX", 2, 2, 0, 2, Q("8.7 mm")),
    Sketcher.Constraint("DistanceY", -1, 1, 0, 2, Q("3.65 mm")),
    Sketcher.Constraint("DistanceX", -1, 1, 0, 2, Q("4.002 mm")),
    Sketcher.Constraint("DistanceX", 0, 1, 0, 2, Q("9.020961 mm")),
])
pocket9 = body.newObject("PartDesign::Pocket", "Pocket008")
pocket9.Profile = sketch18
pocket9.Type = "UpToFirst"
doc.recompute()

fillet4 = body.newObject("PartDesign::Fillet", "Fillet003")
fillet4.Base = (pocket9, edges_at(pocket9, [
    (4.323, -72.65, 8.35),
    (-5.019, -72.65, 3.65),
    (4.002, -72.65, 3.65),
    (-4.698, -72.65, 8.35),
]))
fillet4.Radius = 1.5

# Sketch on XZ plane
sketch19 = body.newObject("Sketcher::SketchObject", "Sketch018")
sketch19.AttachmentSupport = (doc.getObject("XZ_Plane"), [""])
sketch19.MapMode = "FlatFace"
sketch19.AttachmentOffset = App.Placement(V(0, 0, 74.15), App.Rotation())
add_polygon(sketch19, [(6.7, 21.35), (-6.7, 21.35), (-6.7, 12.65), (6.7, 12.65)])  # lines 0-3
sketch19.addConstraint([
    Sketcher.Constraint("Horizontal", 0),
    Sketcher.Constraint("Vertical", 1),
    Sketcher.Constraint("Horizontal", 2),
    Sketcher.Constraint("Vertical", 3),
    Sketcher.Constraint("DistanceX", 0, 2, 0, 1, Q("13.4 mm")),
    Sketcher.Constraint("DistanceY", 1, 2, 1, 1, Q("8.7 mm")),
    Sketcher.Constraint("DistanceX", 0, 2, -1, 1, Q("6.7 mm")),
    Sketcher.Constraint("DistanceY", -1, 1, 0, 2, Q("21.35 mm")),
])
pocket10 = body.newObject("PartDesign::Pocket", "Pocket009")
pocket10.Profile = sketch19
pocket10.Type = "UpToFirst"

# Sketch on XZ plane
sketch20 = body.newObject("Sketcher::SketchObject", "Sketch019")
sketch20.AttachmentSupport = (doc.getObject("XZ_Plane"), [""])
sketch20.MapMode = "FlatFace"
sketch20.AttachmentOffset = App.Placement(V(0, 0, 74.15), App.Rotation())
add_polygon(sketch20, [(-7.5, 11.8), (7.5, 11.8), (7.5, 22.2), (-7.5, 22.2)])  # lines 0-3
sketch20.addConstraint([
    Sketcher.Constraint("Horizontal", 0),
    Sketcher.Constraint("Vertical", 1),
    Sketcher.Constraint("Horizontal", 2),
    Sketcher.Constraint("Vertical", 3),
    Sketcher.Constraint("DistanceX", 0, 1, 0, 2, Q("15 mm")),
    Sketcher.Constraint("DistanceY", 1, 1, 1, 2, Q("10.4 mm")),
    Sketcher.Constraint("DistanceX", -1, 1, 0, 2, Q("7.5 mm")),
    Sketcher.Constraint("DistanceY", -1, 1, 0, 2, Q("11.8 mm")),
])
pocket11 = body.newObject("PartDesign::Pocket", "Pocket010")
pocket11.Profile = sketch20
pocket11.Length = 1.8

# Sketch on XY plane
sketch21 = body.newObject("Sketcher::SketchObject", "Sketch020")
sketch21.AttachmentSupport = (doc.getObject("XY_Plane"), [""])
sketch21.MapMode = "FlatFace"
sketch21.AttachmentOffset = App.Placement(V(0, 0, 5), App.Rotation())
sketch21.addGeometry([
    Part.LineSegment(V(13, 1.35, 0), V(-13, 1.35, 0)),  # 0
    Part.ArcOfCircle(Part.Circle(V(-13, 9.35, 0), V(0, 0, 1), 8), math.radians(180), math.radians(270)),  # 1
    Part.LineSegment(V(-21, 9.35, 0), V(-21, 57.04, 0)),  # 2
    Part.ArcOfCircle(Part.Circle(V(-13, 57.04, 0), V(0, 0, 1), 8), math.radians(90), math.radians(180)),  # 3
    Part.LineSegment(V(-13, 65.04, 0), V(13, 65.04, 0)),  # 4
    Part.ArcOfCircle(Part.Circle(V(13, 57.04, 0), V(0, 0, 1), 8), math.radians(0), math.radians(90)),  # 5
    Part.LineSegment(V(21, 57.04, 0), V(21, 9.35, 0)),  # 6
    Part.ArcOfCircle(Part.Circle(V(13, 9.35, 0), V(0, 0, 1), 8), math.radians(-90), math.radians(0)),  # 7
    Part.LineSegment(V(-13, 3.35, 0), V(13, 3.35, 0)),  # 8
    Part.ArcOfCircle(Part.Circle(V(13, 9.35, 0), V(0, 0, 1), 6), math.radians(-90), math.radians(0)),  # 9
    Part.LineSegment(V(19, 9.35, 0), V(19, 57.04, 0)),  # 10
    Part.ArcOfCircle(Part.Circle(V(13, 57.04, 0), V(0, 0, 1), 6), math.radians(0), math.radians(90)),  # 11
    Part.LineSegment(V(13, 63.04, 0), V(-13, 63.04, 0)),  # 12
    Part.ArcOfCircle(Part.Circle(V(-13, 57.04, 0), V(0, 0, 1), 6), math.radians(90), math.radians(180)),  # 13
    Part.LineSegment(V(-19, 57.04, 0), V(-19, 9.35, 0)),  # 14
    Part.ArcOfCircle(Part.Circle(V(-13, 9.35, 0), V(0, 0, 1), 6), math.radians(180), math.radians(270)),  # 15
], False)
sketch21.addConstraint([
    Sketcher.Constraint("Tangent", 0, 2, 1, 2),
    Sketcher.Constraint("Tangent", 1, 1, 2, 1),
    Sketcher.Constraint("Tangent", 2, 2, 3, 2),
    Sketcher.Constraint("Tangent", 3, 1, 4, 1),
    Sketcher.Constraint("Tangent", 4, 2, 5, 2),
    Sketcher.Constraint("Tangent", 5, 1, 6, 1),
    Sketcher.Constraint("Tangent", 6, 2, 7, 2),
    Sketcher.Constraint("Tangent", 7, 1, 0, 1),
    Sketcher.Constraint("Tangent", 8, 2, 9, 1),
    Sketcher.Constraint("Tangent", 9, 2, 10, 1),
    Sketcher.Constraint("Tangent", 10, 2, 11, 1),
    Sketcher.Constraint("Tangent", 11, 2, 12, 1),
    Sketcher.Constraint("Tangent", 12, 2, 13, 1),
    Sketcher.Constraint("Tangent", 13, 2, 14, 1),
    Sketcher.Constraint("Tangent", 14, 2, 15, 1),
    Sketcher.Constraint("Tangent", 15, 2, 8, 1),
    Sketcher.Constraint("Horizontal", 0),
    Sketcher.Constraint("Vertical", 2),
    Sketcher.Constraint("Horizontal", 4),
    Sketcher.Constraint("Vertical", 6),
    Sketcher.Constraint("Horizontal", 8),
    Sketcher.Constraint("Vertical", 10),
    Sketcher.Constraint("Horizontal", 12),
    Sketcher.Constraint("Vertical", 14),
    Sketcher.Constraint("Coincident", 9, 3, 7, 3),
    Sketcher.Constraint("Coincident", 11, 3, 5, 3),
    Sketcher.Constraint("Coincident", 13, 3, 3, 3),
    Sketcher.Constraint("Equal", 1, 3),
    Sketcher.Constraint("Equal", 3, 5),
    Sketcher.Constraint("Equal", 5, 7),
    Sketcher.Constraint("Equal", 13, 15),
    Sketcher.Constraint("Radius", 1, Q("8 mm")),
    Sketcher.Constraint("Radius", 9, Q("6 mm")),
    Sketcher.Constraint("DistanceX", 0, 2, 0, 1, Q("26 mm")),
    Sketcher.Constraint("DistanceX", 1, 3, -1, 1, Q("13 mm")),
    Sketcher.Constraint("DistanceY", 2, 1, 2, 2, Q("47.69 mm")),
    Sketcher.Constraint("DistanceY", -1, 1, 1, 3, Q("9.35 mm")),
])
pad10 = body.newObject("PartDesign::Pad", "Pad009")
pad10.Profile = sketch21
pad10.Length = 20

# Sketch on XY plane
sketch22 = body.newObject("Sketcher::SketchObject", "Sketch021")
sketch22.AttachmentSupport = (doc.getObject("XY_Plane"), [""])
sketch22.MapMode = "FlatFace"
sketch22.AttachmentOffset = App.Placement(V(0, 0, 3), App.Rotation())
sketch22.addGeometry([
    Part.LineSegment(V(21, 57.04, 0), V(21, 9.35, 0)),  # 0
    Part.ArcOfCircle(Part.Circle(V(13, 9.35, 0), V(0, 0, 1), 8), math.radians(-90), math.radians(0)),  # 1
    Part.LineSegment(V(13, 1.35, 0), V(-13, 1.35, 0)),  # 2
    Part.ArcOfCircle(Part.Circle(V(-13, 9.35, 0), V(0, 0, 1), 8), math.radians(180), math.radians(270)),  # 3
    Part.LineSegment(V(-21, 9.35, 0), V(-21, 57.04, 0)),  # 4
    Part.ArcOfCircle(Part.Circle(V(-13, 57.04, 0), V(0, 0, 1), 8), math.radians(90), math.radians(180)),  # 5
    Part.LineSegment(V(-13, 65.04, 0), V(13, 65.04, 0)),  # 6
    Part.ArcOfCircle(Part.Circle(V(13, 57.04, 0), V(0, 0, 1), 8), math.radians(71.562742), math.radians(90)),  # 7
    Part.ArcOfCircle(Part.Circle(V(17.62, 68.04, 0), V(0, 0, 1), 4), math.radians(-121.497946), math.radians(-104.066866)),  # 8
    Part.ArcOfCircle(Part.Circle(V(13, 57.04, 0), V(0, 0, 1), 8), math.radians(0), math.radians(62.872447)),  # 9
], False)
sketch22.addConstraint([
    Sketcher.Constraint("Tangent", 0, 2, 1, 2),
    Sketcher.Constraint("Tangent", 1, 1, 2, 1),
    Sketcher.Constraint("Tangent", 2, 2, 3, 2),
    Sketcher.Constraint("Tangent", 3, 1, 4, 1),
    Sketcher.Constraint("Tangent", 4, 2, 5, 2),
    Sketcher.Constraint("Tangent", 5, 1, 6, 1),
    Sketcher.Constraint("Tangent", 6, 2, 7, 2),
    Sketcher.Constraint("Coincident", 7, 1, 8, 1),
    Sketcher.Constraint("Coincident", 8, 2, 9, 2),
    Sketcher.Constraint("Tangent", 9, 1, 0, 1),
    Sketcher.Constraint("Vertical", 0),
    Sketcher.Constraint("Horizontal", 2),
    Sketcher.Constraint("Vertical", 4),
    Sketcher.Constraint("Horizontal", 6),
    Sketcher.Constraint("Coincident", 9, 3, 7, 3),
    Sketcher.Constraint("Equal", 1, 3),
    Sketcher.Constraint("Equal", 3, 5),
    Sketcher.Constraint("Equal", 5, 7),
    Sketcher.Constraint("Equal", 7, 9),
    Sketcher.Constraint("Radius", 1, Q("8 mm")),
    Sketcher.Constraint("Radius", 8, Q("4 mm")),
    Sketcher.Constraint("DistanceX", 2, 2, 2, 1, Q("26 mm")),
    Sketcher.Constraint("DistanceX", -1, 1, 1, 3, Q("13 mm")),
    Sketcher.Constraint("DistanceY", 7, 3, 8, 3, Q("11 mm")),
    Sketcher.Constraint("DistanceY", 0, 2, 0, 1, Q("47.69 mm")),
    Sketcher.Constraint("DistanceY", -1, 1, 1, 3, Q("9.35 mm")),
    Sketcher.Constraint("DistanceX", -1, 1, 8, 3, Q("17.62 mm")),
])
pad11 = body.newObject("PartDesign::Pad", "Pad010")
pad11.Profile = sketch22
pad11.Length = 2

# Sketch on XZ plane
sketch23 = body.newObject("Sketcher::SketchObject", "Sketch022")
sketch23.AttachmentSupport = (doc.getObject("XZ_Plane"), [""])
sketch23.MapMode = "FlatFace"
sketch23.AttachmentOffset = App.Placement(V(0, 0, -1.35), App.Rotation())
sketch23.addGeometry(Part.Circle(V(10.95119, 14, 0), V(0, 0, 1), 2), False)
sketch23.addConstraint([
    Sketcher.Constraint("Diameter", 0, Q("4 mm")),
    Sketcher.Constraint("DistanceY", -1, 1, 0, 3, Q("14 mm")),
    Sketcher.Constraint("DistanceX", -1, 1, 0, 3, Q("10.95119 mm")),
])
pocket12 = body.newObject("PartDesign::Pocket", "Pocket011")
pocket12.Profile = sketch23
pocket12.Type = "UpToFirst"

# Sketch on XZ plane
sketch24 = body.newObject("Sketcher::SketchObject", "Sketch023")
sketch24.AttachmentSupport = (doc.getObject("XZ_Plane"), [""])
sketch24.MapMode = "FlatFace"
sketch24.AttachmentOffset = App.Placement(V(0, 0, -98.04), App.Rotation())
add_polygon(sketch24, [(6, 16.75), (8.2, 16.75), (8.2, 4.25), (6, 4.25)])  # lines 0-3
sketch24.addConstraint([
    Sketcher.Constraint("Horizontal", 0),
    Sketcher.Constraint("Vertical", 1),
    Sketcher.Constraint("Horizontal", 2),
    Sketcher.Constraint("Vertical", 3),
    Sketcher.Constraint("DistanceX", 0, 1, 0, 2, Q("2.2 mm")),
    Sketcher.Constraint("DistanceY", 1, 2, 1, 1, Q("12.5 mm")),
    Sketcher.Constraint("DistanceX", -1, 1, 2, 2, Q("6 mm")),
    Sketcher.Constraint("DistanceY", -1, 1, 0, 2, Q("16.75 mm")),
])
pocket13 = body.newObject("PartDesign::Pocket", "Pocket012")
pocket13.Profile = sketch24
pocket13.Length = 25
pocket13.Reversed = True

# Sketch on XZ plane
sketch25 = body.newObject("Sketcher::SketchObject", "Sketch024")
sketch25.AttachmentSupport = (doc.getObject("XZ_Plane"), [""])
sketch25.MapMode = "FlatFace"
sketch25.AttachmentOffset = App.Placement(V(0, 0, 74.15), App.Rotation())
sketch25.addGeometry([
    Part.LineSegment(V(-3.413033, 1.65, 0), V(2.600941, 1.65, 0)),  # 0
    Part.ArcOfCircle(Part.Circle(V(2.600941, 5.15, 0), V(0, 0, 1), 3.5), math.radians(-90), math.radians(-3.906642)),  # 1
    Part.LineSegment(V(6.092808, 4.911542, 0), V(6.208901, 6.611542, 0)),  # 2
    Part.ArcOfCircle(Part.Circle(V(2.717033, 6.85, 0), V(0, 0, 1), 3.5), math.radians(-3.906642), math.radians(90)),  # 3
    Part.LineSegment(V(2.717033, 10.35, 0), V(-3.296941, 10.35, 0)),  # 4
    Part.ArcOfCircle(Part.Circle(V(-3.296941, 6.85, 0), V(0, 0, 1), 3.5), math.radians(90), math.radians(176.093358)),  # 5
    Part.LineSegment(V(-6.788808, 7.088458, 0), V(-6.904901, 5.388458, 0)),  # 6
    Part.ArcOfCircle(Part.Circle(V(-3.413033, 5.15, 0), V(0, 0, 1), 3.5), math.radians(176.093358), math.radians(270)),  # 7
], False)
sketch25.addConstraint([
    Sketcher.Constraint("Tangent", 0, 2, 1, 1),
    Sketcher.Constraint("Tangent", 1, 2, 2, 1),
    Sketcher.Constraint("Tangent", 2, 2, 3, 1),
    Sketcher.Constraint("Tangent", 3, 2, 4, 1),
    Sketcher.Constraint("Tangent", 4, 2, 5, 1),
    Sketcher.Constraint("Tangent", 5, 2, 6, 1),
    Sketcher.Constraint("Tangent", 6, 2, 7, 1),
    Sketcher.Constraint("Tangent", 7, 2, 0, 1),
    Sketcher.Constraint("Horizontal", 0),
    Sketcher.Constraint("Horizontal", 4),
    Sketcher.Constraint("Equal", 1, 3),
    Sketcher.Constraint("Equal", 3, 5),
    Sketcher.Constraint("Equal", 5, 7),
    Sketcher.Constraint("Parallel", 2, 6),
    Sketcher.Constraint("Radius", 1, Q("3.5 mm")),
    Sketcher.Constraint("DistanceY", 1, 3, 3, 3, Q("1.7 mm")),
    Sketcher.Constraint("DistanceY", -1, 1, 1, 3, Q("5.15 mm")),
    Sketcher.Constraint("DistanceX", -1, 1, 2, 2, Q("6.208901 mm")),
    Sketcher.Constraint("DistanceX", 6, 2, -1, 1, Q("6.904901 mm")),
    Sketcher.Constraint("Distance", 2, Q("1.703959 mm")),
])
pocket14 = body.newObject("PartDesign::Pocket", "Pocket013")
pocket14.Profile = sketch25
pocket14.Length = 1.5

doc.recompute()
